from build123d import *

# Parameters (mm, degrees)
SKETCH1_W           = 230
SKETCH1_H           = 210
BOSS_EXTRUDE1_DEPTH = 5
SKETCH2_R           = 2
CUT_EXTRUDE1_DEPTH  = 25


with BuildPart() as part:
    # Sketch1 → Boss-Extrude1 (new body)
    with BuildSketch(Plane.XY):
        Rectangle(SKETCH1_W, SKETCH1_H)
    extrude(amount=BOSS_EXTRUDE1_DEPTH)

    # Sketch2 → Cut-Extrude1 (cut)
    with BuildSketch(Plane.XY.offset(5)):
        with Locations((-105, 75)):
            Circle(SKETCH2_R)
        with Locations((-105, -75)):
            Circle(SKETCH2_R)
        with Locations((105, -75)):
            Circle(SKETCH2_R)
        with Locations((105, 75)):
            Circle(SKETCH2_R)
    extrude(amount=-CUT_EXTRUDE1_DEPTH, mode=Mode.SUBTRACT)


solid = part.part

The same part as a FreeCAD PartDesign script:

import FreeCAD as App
import Part
import Sketcher

V = App.Vector


def add_polygon(sketch, points):
    """Adds a closed chain of lines whose ends are joined by coincident constraints."""
    first, n = sketch.GeometryCount, len(points)
    for a, b in zip(points, points[1:] + points[:1]):
        sketch.addGeometry(Part.LineSegment(App.Vector(*a, 0), App.Vector(*b, 0)), False)
    for i in range(n):
        sketch.addConstraint(Sketcher.Constraint("Coincident", first + i, 2, first + (i + 1) % n, 1))

doc = App.newDocument("Part")
body = doc.addObject("PartDesign::Body", "Body")

# Sketch on XY plane
sketch1 = body.newObject("Sketcher::SketchObject", "Sketch")
sketch1.AttachmentSupport = (doc.getObject("XY_Plane"), [""])
sketch1.MapMode = "FlatFace"
add_polygon(sketch1, [(-115, 105), (-115, -105), (115, -105), (115, 105)])  # lines 0-3
sketch1.addConstraint([
    Sketcher.Constraint("Vertical", 0),
    Sketcher.Constraint("Horizontal", 1),
    Sketcher.Constraint("Vertical", 2),
    Sketcher.Constraint("Horizontal", 3),
    Sketcher.Constraint("Symmetric", 0, 2, 2, 2, -1, 1),
    Sketcher.Constraint("DistanceX", 1, 1, 1, 2, 230.0),
    Sketcher.Constraint("DistanceY", 0, 2, 0, 1, 210.0),
])
pad1 = body.newObject("PartDesign::Pad", "Pad")
pad1.Profile = sketch1
pad1.Length = 5

# Sketch on XY plane
sketch2 = body.newObject("Sketcher::SketchObject", "Sketch001")
sketch2.AttachmentSupport = (doc.getObject("XY_Plane"), [""])
sketch2.MapMode = "FlatFace"
sketch2.AttachmentOffset = App.Placement(V(0, 0, 5), App.Rotation())
sketch2.addGeometry([
    Part.Circle(V(-105, 75, 0), V(0, 0, 1), 2),
    Part.Circle(V(-105, -75, 0), V(0, 0, 1), 2),
    Part.Circle(V(105, -75, 0), V(0, 0, 1), 2),
    Part.Circle(V(105, 75, 0), V(0, 0, 1), 2),
], False)
sketch2.addConstraint([
    Sketcher.Constraint("Equal", 0, 1),
    Sketcher.Constraint("Equal", 1, 2),
    Sketcher.Constraint("Equal", 2, 3),
    Sketcher.Constraint("Symmetric", 0, 3, 2, 3, -1, 1),
    Sketcher.Constraint("Symmetric", 1, 3, 3, 3, -1, 1),
    Sketcher.Constraint("Symmetric", 1, 3, 2, 3, -2),
    Sketcher.Constraint("Diameter", 0, 4.0),
    Sketcher.Constraint("DistanceX", 0, 3, -1, 1, 105.0),
    Sketcher.Constraint("DistanceY", -1, 1, 0, 3, 75.0),
])
pocket1 = body.newObject("PartDesign::Pocket", "Pocket")
pocket1.Profile = sketch2
pocket1.Length = 25

doc.recompute()
